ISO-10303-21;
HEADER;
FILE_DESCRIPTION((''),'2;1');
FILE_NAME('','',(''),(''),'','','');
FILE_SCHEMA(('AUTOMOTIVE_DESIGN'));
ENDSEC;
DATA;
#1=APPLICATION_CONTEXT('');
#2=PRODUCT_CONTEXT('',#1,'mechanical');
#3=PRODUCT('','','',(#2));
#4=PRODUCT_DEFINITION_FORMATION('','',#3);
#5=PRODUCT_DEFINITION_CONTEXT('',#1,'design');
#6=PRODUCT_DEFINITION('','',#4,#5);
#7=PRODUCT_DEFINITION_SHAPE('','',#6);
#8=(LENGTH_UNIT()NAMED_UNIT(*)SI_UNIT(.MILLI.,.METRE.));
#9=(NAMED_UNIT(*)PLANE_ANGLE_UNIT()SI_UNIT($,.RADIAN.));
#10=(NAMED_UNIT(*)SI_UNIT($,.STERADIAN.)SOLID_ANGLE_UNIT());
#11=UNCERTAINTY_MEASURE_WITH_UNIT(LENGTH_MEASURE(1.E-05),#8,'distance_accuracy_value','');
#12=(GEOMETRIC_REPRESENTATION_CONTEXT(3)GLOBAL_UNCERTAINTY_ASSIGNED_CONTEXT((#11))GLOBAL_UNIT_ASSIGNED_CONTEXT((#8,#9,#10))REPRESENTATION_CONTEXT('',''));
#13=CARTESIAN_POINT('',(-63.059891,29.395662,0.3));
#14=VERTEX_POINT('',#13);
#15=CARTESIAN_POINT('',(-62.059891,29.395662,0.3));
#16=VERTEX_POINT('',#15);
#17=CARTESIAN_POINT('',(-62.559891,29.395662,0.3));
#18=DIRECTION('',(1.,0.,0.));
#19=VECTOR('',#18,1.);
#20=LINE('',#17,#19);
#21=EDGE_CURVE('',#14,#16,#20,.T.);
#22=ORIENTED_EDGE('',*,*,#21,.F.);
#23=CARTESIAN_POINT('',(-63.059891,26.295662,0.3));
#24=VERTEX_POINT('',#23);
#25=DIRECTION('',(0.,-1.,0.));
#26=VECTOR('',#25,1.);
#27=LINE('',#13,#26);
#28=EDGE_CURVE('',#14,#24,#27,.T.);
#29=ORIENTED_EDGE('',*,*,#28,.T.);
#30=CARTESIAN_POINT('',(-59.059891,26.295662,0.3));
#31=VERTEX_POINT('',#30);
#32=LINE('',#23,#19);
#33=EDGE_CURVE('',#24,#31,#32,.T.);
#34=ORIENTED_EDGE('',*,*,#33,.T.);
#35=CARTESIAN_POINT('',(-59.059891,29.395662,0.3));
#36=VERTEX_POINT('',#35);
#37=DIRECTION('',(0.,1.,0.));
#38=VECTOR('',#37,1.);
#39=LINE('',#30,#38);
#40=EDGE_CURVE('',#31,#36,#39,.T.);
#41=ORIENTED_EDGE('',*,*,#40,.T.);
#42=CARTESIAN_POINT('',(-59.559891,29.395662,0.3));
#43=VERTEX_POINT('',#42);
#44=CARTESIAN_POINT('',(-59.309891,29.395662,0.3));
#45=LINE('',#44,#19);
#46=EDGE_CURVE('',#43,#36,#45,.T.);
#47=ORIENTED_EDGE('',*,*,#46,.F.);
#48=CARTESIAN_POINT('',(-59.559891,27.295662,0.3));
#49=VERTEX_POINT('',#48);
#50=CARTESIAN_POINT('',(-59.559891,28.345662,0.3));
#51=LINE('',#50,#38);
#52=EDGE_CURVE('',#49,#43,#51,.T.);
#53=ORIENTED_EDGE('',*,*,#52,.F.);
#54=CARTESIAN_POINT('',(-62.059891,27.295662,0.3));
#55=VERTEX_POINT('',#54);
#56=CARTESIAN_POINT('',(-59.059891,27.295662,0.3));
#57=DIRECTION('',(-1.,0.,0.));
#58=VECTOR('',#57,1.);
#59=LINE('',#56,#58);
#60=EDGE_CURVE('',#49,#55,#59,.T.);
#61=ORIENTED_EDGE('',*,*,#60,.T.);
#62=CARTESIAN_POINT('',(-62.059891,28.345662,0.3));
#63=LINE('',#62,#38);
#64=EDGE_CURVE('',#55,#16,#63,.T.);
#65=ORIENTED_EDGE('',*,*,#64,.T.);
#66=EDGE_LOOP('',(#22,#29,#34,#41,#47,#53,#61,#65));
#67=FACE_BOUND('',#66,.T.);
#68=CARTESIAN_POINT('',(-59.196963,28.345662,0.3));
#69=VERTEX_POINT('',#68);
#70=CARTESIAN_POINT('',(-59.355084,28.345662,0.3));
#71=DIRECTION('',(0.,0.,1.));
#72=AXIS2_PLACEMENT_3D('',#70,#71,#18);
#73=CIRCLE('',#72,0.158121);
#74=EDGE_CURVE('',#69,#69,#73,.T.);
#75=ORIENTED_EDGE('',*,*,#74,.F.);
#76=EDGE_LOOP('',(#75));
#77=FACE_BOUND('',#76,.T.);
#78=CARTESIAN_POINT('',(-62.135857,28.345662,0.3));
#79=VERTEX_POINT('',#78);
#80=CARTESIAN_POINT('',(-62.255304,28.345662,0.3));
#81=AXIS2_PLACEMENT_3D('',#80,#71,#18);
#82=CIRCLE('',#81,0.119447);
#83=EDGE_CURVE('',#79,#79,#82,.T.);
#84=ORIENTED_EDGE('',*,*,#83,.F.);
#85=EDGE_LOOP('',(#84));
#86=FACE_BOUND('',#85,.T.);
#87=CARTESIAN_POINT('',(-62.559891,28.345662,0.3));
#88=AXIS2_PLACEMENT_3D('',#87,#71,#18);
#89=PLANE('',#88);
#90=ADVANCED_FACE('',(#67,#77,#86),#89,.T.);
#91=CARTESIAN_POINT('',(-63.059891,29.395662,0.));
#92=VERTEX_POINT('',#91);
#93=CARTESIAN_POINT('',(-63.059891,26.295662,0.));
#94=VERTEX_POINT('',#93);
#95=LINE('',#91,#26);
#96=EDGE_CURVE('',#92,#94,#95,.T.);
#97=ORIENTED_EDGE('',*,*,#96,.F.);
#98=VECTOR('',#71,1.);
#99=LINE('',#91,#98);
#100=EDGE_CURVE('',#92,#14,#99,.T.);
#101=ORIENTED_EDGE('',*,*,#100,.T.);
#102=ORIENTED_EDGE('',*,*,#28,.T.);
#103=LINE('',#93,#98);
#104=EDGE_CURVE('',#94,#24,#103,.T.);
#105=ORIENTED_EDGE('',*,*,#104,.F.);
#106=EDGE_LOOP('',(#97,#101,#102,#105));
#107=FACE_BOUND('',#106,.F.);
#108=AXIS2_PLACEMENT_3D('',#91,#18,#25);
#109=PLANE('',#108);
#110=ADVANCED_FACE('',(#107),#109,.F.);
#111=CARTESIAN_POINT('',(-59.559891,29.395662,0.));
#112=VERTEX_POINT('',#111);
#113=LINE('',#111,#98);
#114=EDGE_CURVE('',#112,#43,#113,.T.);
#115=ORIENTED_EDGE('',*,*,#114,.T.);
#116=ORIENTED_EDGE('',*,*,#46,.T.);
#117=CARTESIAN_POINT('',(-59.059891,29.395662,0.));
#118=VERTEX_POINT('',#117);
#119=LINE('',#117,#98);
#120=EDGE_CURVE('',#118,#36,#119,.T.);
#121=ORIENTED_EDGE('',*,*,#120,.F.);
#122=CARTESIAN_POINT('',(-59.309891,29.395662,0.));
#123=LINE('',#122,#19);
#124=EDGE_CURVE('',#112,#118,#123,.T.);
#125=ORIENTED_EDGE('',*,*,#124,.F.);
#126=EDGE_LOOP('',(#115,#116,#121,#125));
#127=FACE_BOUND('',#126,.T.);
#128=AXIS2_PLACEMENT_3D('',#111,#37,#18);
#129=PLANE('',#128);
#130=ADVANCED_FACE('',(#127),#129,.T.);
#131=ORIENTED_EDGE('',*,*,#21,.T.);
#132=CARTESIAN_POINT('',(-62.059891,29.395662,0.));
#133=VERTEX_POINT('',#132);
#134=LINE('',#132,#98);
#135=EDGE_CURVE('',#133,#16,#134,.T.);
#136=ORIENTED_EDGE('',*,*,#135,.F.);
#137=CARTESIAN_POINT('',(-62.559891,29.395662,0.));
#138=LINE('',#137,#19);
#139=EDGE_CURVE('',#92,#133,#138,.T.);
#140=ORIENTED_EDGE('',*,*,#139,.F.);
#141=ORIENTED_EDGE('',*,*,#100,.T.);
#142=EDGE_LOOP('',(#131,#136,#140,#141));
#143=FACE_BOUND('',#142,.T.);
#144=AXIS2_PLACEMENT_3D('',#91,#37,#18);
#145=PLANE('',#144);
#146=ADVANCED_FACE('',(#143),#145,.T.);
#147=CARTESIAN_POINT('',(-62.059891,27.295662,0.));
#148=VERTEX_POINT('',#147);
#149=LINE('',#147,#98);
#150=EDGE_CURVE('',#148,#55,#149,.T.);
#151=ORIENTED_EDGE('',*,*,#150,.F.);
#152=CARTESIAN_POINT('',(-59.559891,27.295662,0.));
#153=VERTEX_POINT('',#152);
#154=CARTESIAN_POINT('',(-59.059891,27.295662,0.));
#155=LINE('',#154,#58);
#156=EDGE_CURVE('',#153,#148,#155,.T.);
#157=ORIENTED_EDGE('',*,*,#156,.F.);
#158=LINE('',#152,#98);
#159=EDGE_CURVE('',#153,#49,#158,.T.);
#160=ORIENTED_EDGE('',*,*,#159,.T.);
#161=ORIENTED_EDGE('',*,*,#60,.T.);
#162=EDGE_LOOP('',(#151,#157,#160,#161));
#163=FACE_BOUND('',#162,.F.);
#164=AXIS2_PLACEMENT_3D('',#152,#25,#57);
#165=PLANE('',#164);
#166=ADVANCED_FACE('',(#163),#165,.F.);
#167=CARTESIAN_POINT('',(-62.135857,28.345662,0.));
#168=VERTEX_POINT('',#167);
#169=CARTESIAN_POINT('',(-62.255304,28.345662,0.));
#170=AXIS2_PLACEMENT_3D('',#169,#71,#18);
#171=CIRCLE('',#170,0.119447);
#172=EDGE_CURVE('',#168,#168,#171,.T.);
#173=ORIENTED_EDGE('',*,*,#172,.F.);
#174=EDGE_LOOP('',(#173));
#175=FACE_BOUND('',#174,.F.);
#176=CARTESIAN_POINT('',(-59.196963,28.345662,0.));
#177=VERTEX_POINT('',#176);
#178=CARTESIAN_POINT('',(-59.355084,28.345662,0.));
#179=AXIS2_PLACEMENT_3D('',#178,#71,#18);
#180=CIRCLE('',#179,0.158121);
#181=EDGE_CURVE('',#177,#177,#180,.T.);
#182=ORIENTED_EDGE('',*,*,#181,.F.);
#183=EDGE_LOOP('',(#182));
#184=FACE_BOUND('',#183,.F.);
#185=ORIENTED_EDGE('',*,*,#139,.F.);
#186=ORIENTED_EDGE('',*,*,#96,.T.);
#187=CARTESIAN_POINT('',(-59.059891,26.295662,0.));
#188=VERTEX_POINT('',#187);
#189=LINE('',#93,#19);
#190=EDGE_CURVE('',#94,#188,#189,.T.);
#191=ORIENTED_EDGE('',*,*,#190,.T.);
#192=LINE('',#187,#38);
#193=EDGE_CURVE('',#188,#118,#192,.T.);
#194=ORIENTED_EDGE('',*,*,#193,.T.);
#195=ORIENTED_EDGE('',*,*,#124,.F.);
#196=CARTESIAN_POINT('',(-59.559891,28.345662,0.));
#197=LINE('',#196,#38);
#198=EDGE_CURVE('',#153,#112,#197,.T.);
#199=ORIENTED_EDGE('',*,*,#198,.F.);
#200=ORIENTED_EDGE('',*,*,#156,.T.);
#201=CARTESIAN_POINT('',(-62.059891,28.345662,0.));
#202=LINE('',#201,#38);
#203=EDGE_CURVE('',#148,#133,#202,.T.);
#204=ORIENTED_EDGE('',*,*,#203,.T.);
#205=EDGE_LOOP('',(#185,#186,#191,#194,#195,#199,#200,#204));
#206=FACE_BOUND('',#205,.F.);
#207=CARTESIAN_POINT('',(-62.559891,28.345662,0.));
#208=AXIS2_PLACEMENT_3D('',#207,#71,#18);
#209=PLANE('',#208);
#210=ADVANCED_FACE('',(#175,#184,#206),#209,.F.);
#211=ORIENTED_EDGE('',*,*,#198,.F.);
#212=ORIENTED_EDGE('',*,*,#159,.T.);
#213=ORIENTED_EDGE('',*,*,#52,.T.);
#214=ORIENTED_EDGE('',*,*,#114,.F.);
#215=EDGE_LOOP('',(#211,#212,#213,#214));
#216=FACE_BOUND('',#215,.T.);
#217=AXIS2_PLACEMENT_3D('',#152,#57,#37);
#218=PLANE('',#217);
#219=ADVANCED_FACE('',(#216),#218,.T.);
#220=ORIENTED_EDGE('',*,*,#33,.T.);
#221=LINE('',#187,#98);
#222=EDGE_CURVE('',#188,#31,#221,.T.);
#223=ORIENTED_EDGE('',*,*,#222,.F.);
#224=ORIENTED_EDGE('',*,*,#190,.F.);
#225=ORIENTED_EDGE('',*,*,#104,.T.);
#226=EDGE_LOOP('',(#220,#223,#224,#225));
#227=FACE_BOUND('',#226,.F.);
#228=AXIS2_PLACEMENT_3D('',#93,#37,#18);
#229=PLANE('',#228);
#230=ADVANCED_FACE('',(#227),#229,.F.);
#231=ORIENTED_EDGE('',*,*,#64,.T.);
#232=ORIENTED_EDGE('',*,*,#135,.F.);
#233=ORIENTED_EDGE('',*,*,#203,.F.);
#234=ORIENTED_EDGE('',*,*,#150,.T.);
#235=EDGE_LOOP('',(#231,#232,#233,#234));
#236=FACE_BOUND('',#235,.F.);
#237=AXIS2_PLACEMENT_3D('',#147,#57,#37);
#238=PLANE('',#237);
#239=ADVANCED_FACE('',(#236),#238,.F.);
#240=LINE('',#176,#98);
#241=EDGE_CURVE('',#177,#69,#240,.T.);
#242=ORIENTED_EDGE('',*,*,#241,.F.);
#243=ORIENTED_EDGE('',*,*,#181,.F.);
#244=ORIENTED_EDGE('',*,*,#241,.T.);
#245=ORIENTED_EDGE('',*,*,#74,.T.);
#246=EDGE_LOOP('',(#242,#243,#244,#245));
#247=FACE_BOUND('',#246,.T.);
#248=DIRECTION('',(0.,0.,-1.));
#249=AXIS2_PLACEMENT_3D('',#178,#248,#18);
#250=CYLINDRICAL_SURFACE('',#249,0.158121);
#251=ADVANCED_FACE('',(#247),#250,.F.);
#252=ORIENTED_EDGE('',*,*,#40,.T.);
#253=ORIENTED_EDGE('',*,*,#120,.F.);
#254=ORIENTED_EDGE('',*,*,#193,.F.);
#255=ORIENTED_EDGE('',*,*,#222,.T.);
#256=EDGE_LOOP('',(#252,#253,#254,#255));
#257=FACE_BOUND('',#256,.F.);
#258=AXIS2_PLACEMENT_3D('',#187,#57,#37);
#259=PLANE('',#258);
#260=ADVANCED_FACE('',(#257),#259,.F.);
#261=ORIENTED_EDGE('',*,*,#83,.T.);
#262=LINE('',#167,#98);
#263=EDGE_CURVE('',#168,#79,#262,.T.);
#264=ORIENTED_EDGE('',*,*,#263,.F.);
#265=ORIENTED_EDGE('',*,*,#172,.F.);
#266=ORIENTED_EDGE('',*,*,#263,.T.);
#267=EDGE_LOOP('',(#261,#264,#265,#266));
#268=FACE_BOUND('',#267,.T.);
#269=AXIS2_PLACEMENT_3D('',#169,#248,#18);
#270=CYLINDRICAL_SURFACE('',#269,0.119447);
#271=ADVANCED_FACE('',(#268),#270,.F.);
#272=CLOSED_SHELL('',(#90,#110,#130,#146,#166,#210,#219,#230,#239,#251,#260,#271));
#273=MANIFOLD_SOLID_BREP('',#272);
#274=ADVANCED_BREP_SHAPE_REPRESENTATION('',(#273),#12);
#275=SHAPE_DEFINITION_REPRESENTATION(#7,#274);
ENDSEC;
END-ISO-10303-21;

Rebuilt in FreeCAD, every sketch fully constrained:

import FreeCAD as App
import Part
import Sketcher
from FreeCAD import Vector

doc = App.newDocument("Part")
params = doc.addObject("Spreadsheet::Sheet", "Params")
for row, (alias, value) in enumerate([
    ("sketch1_width", "4 mm"),
    ("sketch1_width2", "1 mm"),
    ("sketch1_width3", "0.5 mm"),
    ("sketch1_height", "3.1 mm"),
    ("sketch1_height2", "2.1 mm"),
    ("pad1_length", "0.3 mm"),
], start=1):
    params.set(f"A{row}", alias)
    params.set(f"B{row}", "=" + value)
    params.setAlias(f"B{row}", alias)

body = doc.addObject("PartDesign::Body", "Body")

sketch1 = body.newObject("Sketcher::SketchObject", "Sketch")
sketch1.AttachmentSupport = (doc.getObject("XY_Plane"), [""])
sketch1.MapMode = "FlatFace"
sketch1.addGeometry([
    Part.LineSegment(Vector(-63.06, 29.4, 0), Vector(-63.06, 26.3, 0)),
    Part.LineSegment(Vector(-63.06, 26.3, 0), Vector(-59.06, 26.3, 0)),
    Part.LineSegment(Vector(-59.06, 26.3, 0), Vector(-59.06, 29.4, 0)),
    Part.LineSegment(Vector(-59.06, 29.4, 0), Vector(-59.56, 29.4, 0)),
    Part.LineSegment(Vector(-59.56, 29.4, 0), Vector(-59.56, 27.3, 0)),
    Part.LineSegment(Vector(-59.56, 27.3, 0), Vector(-62.06, 27.3, 0)),
    Part.LineSegment(Vector(-62.06, 27.3, 0), Vector(-62.06, 29.4, 0)),
    Part.LineSegment(Vector(-62.06, 29.4, 0), Vector(-63.06, 29.4, 0)),
    Part.Circle(Vector(-62.26, 28.35, 0), Vector(0, 0, 1), 0.12),
    Part.Circle(Vector(-59.36, 28.35, 0), Vector(0, 0, 1), 0.16),
], False)
sketch1.addConstraint([
    Sketcher.Constraint("Coincident", 0, 2, 1, 1),
    Sketcher.Constraint("Coincident", 1, 2, 2, 1),
    Sketcher.Constraint("Coincident", 2, 2, 3, 1),
    Sketcher.Constraint("Coincident", 3, 2, 4, 1),
    Sketcher.Constraint("Coincident", 4, 2, 5, 1),
    Sketcher.Constraint("Coincident", 5, 2, 6, 1),
    Sketcher.Constraint("Coincident", 6, 2, 7, 1),
    Sketcher.Constraint("Coincident", 7, 2, 0, 1),
    Sketcher.Constraint("Vertical", 0),
    Sketcher.Constraint("Horizontal", 1),
    Sketcher.Constraint("Vertical", 2),
    Sketcher.Constraint("Horizontal", 3),
    Sketcher.Constraint("Vertical", 4),
    Sketcher.Constraint("Horizontal", 5),
    Sketcher.Constraint("Vertical", 6),
    Sketcher.Constraint("Horizontal", 7),
    Sketcher.Constraint("Horizontal", 8, 3, 9, 3),
    Sketcher.Constraint("Horizontal", 3, 2, 6, 2),
    Sketcher.Constraint("DistanceX", 1, 1, 1, 2, 4.0),
    Sketcher.Constraint("DistanceX", 7, 2, 7, 1, 1.0),
    Sketcher.Constraint("DistanceX", 3, 2, 3, 1, 0.5),
    Sketcher.Constraint("DistanceY", 0, 2, 0, 1, 3.1),
    Sketcher.Constraint("DistanceY", 4, 2, 4, 1, 2.1),
    Sketcher.Constraint("DistanceY", 0, 2, 8, 3, 2.05),
    Sketcher.Constraint("Diameter", 8, 0.238894),
    Sketcher.Constraint("Diameter", 9, 0.316242),
    Sketcher.Constraint("DistanceX", 0, 2, -1, 1, 63.059891),
    Sketcher.Constraint("DistanceY", -1, 1, 0, 2, 26.295662),
    Sketcher.Constraint("DistanceX", 8, 3, 9, 3, 2.90022),
    Sketcher.Constraint("DistanceX", 8, 3, -1, 1, 62.255304),
])
sketch1.setExpression("Constraints[18]", "Params.sketch1_width")
sketch1.setExpression("Constraints[19]", "Params.sketch1_width2")
sketch1.setExpression("Constraints[20]", "Params.sketch1_width3")
sketch1.setExpression("Constraints[21]", "Params.sketch1_height")
sketch1.setExpression("Constraints[22]", "Params.sketch1_height2")
pad1 = body.newObject("PartDesign::Pad", "Pad")
pad1.Profile = sketch1
pad1.setExpression("Length", "Params.pad1_length")

doc.recompute()
